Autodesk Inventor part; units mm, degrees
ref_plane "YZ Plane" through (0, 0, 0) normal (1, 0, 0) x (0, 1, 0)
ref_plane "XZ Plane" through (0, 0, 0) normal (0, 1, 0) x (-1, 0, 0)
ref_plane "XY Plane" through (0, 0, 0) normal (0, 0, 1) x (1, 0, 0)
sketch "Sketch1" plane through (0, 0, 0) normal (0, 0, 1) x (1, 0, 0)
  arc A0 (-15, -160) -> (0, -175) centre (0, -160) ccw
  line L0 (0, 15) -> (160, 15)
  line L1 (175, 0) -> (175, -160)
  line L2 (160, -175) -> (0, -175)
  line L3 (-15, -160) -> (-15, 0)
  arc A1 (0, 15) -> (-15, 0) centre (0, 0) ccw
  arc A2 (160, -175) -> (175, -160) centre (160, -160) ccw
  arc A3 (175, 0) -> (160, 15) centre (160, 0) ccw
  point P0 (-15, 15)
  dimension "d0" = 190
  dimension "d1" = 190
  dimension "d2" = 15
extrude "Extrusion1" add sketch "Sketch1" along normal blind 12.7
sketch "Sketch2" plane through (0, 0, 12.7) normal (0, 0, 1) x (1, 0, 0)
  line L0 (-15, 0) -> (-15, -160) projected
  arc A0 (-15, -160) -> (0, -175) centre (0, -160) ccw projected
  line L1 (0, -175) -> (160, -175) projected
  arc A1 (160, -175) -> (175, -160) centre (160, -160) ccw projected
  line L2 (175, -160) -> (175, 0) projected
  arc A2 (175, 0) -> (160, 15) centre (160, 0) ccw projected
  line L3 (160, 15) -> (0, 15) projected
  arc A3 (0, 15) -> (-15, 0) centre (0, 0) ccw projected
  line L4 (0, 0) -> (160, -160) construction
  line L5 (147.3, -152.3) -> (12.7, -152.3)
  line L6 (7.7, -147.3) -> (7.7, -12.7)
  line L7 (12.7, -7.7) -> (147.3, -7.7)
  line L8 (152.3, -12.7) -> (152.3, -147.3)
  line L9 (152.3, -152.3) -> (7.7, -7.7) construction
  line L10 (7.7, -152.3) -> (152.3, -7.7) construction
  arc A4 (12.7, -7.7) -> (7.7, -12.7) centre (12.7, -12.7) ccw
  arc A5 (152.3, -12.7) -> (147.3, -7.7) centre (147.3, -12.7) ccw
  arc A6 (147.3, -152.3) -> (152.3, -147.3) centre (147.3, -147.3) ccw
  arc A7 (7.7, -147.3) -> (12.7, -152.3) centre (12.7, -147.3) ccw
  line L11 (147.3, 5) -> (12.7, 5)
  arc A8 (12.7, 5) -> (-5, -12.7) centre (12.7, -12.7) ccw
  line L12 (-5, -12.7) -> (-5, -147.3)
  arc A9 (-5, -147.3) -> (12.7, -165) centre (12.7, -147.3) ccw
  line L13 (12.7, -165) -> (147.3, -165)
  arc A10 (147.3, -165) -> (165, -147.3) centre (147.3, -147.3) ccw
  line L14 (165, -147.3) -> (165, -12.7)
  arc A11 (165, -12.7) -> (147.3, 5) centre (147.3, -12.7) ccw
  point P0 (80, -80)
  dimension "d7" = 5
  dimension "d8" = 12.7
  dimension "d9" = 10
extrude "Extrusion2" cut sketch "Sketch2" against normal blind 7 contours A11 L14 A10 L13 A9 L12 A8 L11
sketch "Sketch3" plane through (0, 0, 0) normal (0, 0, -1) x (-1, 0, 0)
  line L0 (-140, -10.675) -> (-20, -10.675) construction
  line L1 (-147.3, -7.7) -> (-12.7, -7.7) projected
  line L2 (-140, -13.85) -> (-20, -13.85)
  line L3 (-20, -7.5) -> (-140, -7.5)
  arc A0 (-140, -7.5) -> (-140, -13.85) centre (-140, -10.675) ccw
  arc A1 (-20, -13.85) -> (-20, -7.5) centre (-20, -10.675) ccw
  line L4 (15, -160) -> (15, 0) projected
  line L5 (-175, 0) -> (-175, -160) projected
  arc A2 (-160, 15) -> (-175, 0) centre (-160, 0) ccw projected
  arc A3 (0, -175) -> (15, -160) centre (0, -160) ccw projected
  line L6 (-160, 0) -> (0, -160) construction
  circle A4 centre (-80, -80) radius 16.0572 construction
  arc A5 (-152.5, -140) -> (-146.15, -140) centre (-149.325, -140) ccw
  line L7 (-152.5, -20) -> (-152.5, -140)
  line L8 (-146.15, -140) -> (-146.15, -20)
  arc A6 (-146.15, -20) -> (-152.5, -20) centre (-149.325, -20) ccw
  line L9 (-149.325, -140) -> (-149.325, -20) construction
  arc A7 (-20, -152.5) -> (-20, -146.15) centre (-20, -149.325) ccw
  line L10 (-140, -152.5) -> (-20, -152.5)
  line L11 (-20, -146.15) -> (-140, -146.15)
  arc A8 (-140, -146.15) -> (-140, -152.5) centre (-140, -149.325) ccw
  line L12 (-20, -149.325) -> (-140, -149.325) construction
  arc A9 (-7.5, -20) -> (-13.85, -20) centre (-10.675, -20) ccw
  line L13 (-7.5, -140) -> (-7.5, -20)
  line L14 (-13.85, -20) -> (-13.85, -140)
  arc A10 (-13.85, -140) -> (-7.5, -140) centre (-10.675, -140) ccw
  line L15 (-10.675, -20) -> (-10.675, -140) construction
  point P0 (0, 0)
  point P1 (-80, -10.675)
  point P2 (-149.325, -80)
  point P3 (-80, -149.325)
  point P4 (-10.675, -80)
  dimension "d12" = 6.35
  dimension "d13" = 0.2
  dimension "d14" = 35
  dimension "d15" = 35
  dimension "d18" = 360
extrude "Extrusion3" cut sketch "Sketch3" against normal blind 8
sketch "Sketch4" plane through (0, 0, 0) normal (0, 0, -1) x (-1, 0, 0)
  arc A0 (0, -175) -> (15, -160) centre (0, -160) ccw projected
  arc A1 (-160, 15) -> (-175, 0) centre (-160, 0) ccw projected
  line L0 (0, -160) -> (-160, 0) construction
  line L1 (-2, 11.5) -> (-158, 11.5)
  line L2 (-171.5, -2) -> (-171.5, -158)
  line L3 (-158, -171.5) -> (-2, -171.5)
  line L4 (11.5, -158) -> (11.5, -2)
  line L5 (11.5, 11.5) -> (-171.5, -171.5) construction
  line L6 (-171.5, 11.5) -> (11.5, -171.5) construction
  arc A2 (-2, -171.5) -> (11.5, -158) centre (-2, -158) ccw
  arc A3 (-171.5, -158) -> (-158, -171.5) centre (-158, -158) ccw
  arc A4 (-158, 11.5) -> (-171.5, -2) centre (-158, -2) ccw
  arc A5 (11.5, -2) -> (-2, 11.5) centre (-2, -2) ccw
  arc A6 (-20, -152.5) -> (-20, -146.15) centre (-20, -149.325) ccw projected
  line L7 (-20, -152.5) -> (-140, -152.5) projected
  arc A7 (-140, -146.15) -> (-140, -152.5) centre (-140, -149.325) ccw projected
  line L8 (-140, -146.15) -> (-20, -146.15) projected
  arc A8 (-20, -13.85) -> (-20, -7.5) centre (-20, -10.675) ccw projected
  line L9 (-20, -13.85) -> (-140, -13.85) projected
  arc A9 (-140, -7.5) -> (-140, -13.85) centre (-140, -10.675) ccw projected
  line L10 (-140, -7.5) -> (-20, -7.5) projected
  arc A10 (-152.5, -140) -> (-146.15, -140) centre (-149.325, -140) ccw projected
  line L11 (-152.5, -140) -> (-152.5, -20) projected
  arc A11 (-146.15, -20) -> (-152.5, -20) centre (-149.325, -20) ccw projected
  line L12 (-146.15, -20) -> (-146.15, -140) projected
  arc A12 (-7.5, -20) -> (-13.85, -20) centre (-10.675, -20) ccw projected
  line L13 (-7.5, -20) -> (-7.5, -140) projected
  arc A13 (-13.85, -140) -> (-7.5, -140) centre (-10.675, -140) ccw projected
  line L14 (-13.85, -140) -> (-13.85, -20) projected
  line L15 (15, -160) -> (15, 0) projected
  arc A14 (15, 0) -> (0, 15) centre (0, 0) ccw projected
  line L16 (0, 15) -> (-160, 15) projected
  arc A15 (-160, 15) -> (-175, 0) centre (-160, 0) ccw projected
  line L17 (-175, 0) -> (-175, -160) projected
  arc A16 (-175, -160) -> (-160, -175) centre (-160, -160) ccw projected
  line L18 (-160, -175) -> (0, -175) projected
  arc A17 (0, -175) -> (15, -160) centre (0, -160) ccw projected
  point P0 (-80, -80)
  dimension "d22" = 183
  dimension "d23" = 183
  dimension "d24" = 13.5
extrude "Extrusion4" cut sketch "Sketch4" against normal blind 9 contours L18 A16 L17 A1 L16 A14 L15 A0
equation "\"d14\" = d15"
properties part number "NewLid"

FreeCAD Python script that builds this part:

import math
import FreeCAD as App
import Part
import Sketcher
Q = App.Units.Quantity

doc = App.newDocument("Part")
body = doc.addObject("PartDesign::Body", "Body")

# Sketch on XY plane
sketch1 = doc.addObject("Sketcher::SketchObject", "Sketch")
body.addObject(sketch1)
sketch1.AttachmentSupport = (doc.XY_Plane, [""])
sketch1.MapMode = "FlatFace"
sketch1.addGeometry([
    Part.LineSegment(App.Vector(-15, 0, 0), App.Vector(-15, -160, 0)),  # 0
    Part.ArcOfCircle(Part.Circle(App.Vector(0, -160, 0), App.Vector(0, 0, 1), 15), math.radians(180), math.radians(270)),  # 1
    Part.LineSegment(App.Vector(0, -175, 0), App.Vector(160, -175, 0)),  # 2
    Part.ArcOfCircle(Part.Circle(App.Vector(160, -160, 0), App.Vector(0, 0, 1), 15), math.radians(-90), math.radians(0)),  # 3
    Part.LineSegment(App.Vector(175, -160, 0), App.Vector(175, 0, 0)),  # 4
    Part.ArcOfCircle(Part.Circle(App.Vector(160, 0, 0), App.Vector(0, 0, 1), 15), math.radians(0), math.radians(90)),  # 5
    Part.LineSegment(App.Vector(160, 15, 0), App.Vector(0, 15, 0)),  # 6
    Part.ArcOfCircle(Part.Circle(App.Vector(0, 0, 0), App.Vector(0, 0, 1), 15), math.radians(90), math.radians(180)),  # 7
], False)
sketch1.addConstraint([
    Sketcher.Constraint("Tangent", 0, 2, 1, 1),
    Sketcher.Constraint("Tangent", 1, 2, 2, 1),
    Sketcher.Constraint("Tangent", 2, 2, 3, 1),
    Sketcher.Constraint("Tangent", 3, 2, 4, 1),
    Sketcher.Constraint("Tangent", 4, 2, 5, 1),
    Sketcher.Constraint("Tangent", 5, 2, 6, 1),
    Sketcher.Constraint("Tangent", 6, 2, 7, 1),
    Sketcher.Constraint("Tangent", 7, 2, 0, 1),
    Sketcher.Constraint("Vertical", 0),
    Sketcher.Constraint("Horizontal", 2),
    Sketcher.Constraint("Vertical", 4),
    Sketcher.Constraint("Horizontal", 6),
    Sketcher.Constraint("Coincident", 7, 3, -1, 1),
    Sketcher.Constraint("Equal", 1, 3),
    Sketcher.Constraint("Equal", 3, 5),
    Sketcher.Constraint("Equal", 5, 7),
    Sketcher.Constraint("Equal", 6, 0),
    Sketcher.Constraint("Radius", 1, Q("15 mm")),
    Sketcher.Constraint("DistanceX", 2, 1, 2, 2, Q("160 mm")),
])
pad1 = doc.addObject("PartDesign::Pad", "Pad")
body.addObject(pad1)
pad1.Profile = sketch1
pad1.Length = 12.7

# Sketch on XY plane
sketch2 = doc.addObject("Sketcher::SketchObject", "Sketch001")
body.addObject(sketch2)
sketch2.AttachmentSupport = (doc.XY_Plane, [""])
sketch2.MapMode = "FlatFace"
sketch2.AttachmentOffset = App.Placement(App.Vector(0, 0, 12.7), App.Rotation())
sketch2.addGeometry([
    Part.ArcOfCircle(Part.Circle(App.Vector(147.3, -12.7, 0), App.Vector(0, 0, 1), 17.7), math.radians(0), math.radians(90)),  # 0
    Part.LineSegment(App.Vector(147.3, 5, 0), App.Vector(12.7, 5, 0)),  # 1
    Part.ArcOfCircle(Part.Circle(App.Vector(12.7, -12.7, 0), App.Vector(0, 0, 1), 17.7), math.radians(90), math.radians(180)),  # 2
    Part.LineSegment(App.Vector(-5, -12.7, 0), App.Vector(-5, -147.3, 0)),  # 3
    Part.ArcOfCircle(Part.Circle(App.Vector(12.7, -147.3, 0), App.Vector(0, 0, 1), 17.7), math.radians(180), math.radians(270)),  # 4
    Part.LineSegment(App.Vector(12.7, -165, 0), App.Vector(147.3, -165, 0)),  # 5
    Part.ArcOfCircle(Part.Circle(App.Vector(147.3, -147.3, 0), App.Vector(0, 0, 1), 17.7), math.radians(-90), math.radians(0)),  # 6
    Part.LineSegment(App.Vector(165, -147.3, 0), App.Vector(165, -12.7, 0)),  # 7
    Part.ArcOfCircle(Part.Circle(App.Vector(147.3, -147.3, 0), App.Vector(0, 0, 1), 5), math.radians(-90), math.radians(0)),  # 8
    Part.LineSegment(App.Vector(147.3, -152.3, 0), App.Vector(12.7, -152.3, 0)),  # 9
    Part.ArcOfCircle(Part.Circle(App.Vector(12.7, -147.3, 0), App.Vector(0, 0, 1), 5), math.radians(180), math.radians(270)),  # 10
    Part.LineSegment(App.Vector(7.7, -147.3, 0), App.Vector(7.7, -12.7, 0)),  # 11
    Part.ArcOfCircle(Part.Circle(App.Vector(12.7, -12.7, 0), App.Vector(0, 0, 1), 5), math.radians(90), math.radians(180)),  # 12
    Part.LineSegment(App.Vector(12.7, -7.7, 0), App.Vector(147.3, -7.7, 0)),  # 13
    Part.ArcOfCircle(Part.Circle(App.Vector(147.3, -12.7, 0), App.Vector(0, 0, 1), 5), math.radians(0), math.radians(90)),  # 14
    Part.LineSegment(App.Vector(152.3, -12.7, 0), App.Vector(152.3, -147.3, 0)),  # 15
], False)
sketch2.addConstraint([
    Sketcher.Constraint("Tangent", 0, 2, 1, 1),
    Sketcher.Constraint("Tangent", 1, 2, 2, 1),
    Sketcher.Constraint("Tangent", 2, 2, 3, 1),
    Sketcher.Constraint("Tangent", 3, 2, 4, 1),
    Sketcher.Constraint("Tangent", 4, 2, 5, 1),
    Sketcher.Constraint("Tangent", 5, 2, 6, 1),
    Sketcher.Constraint("Tangent", 6, 2, 7, 1),
    Sketcher.Constraint("Tangent", 7, 2, 0, 1),
    Sketcher.Constraint("Tangent", 8, 1, 9, 1),
    Sketcher.Constraint("Tangent", 9, 2, 10, 2),
    Sketcher.Constraint("Tangent", 10, 1, 11, 1),
    Sketcher.Constraint("Tangent", 11, 2, 12, 2),
    Sketcher.Constraint("Tangent", 12, 1, 13, 1),
    Sketcher.Constraint("Tangent", 13, 2, 14, 2),
    Sketcher.Constraint("Tangent", 14, 1, 15, 1),
    Sketcher.Constraint("Tangent", 15, 2, 8, 2),
    Sketcher.Constraint("Horizontal", 1),
    Sketcher.Constraint("Vertical", 3),
    Sketcher.Constraint("Horizontal", 5),
    Sketcher.Constraint("Vertical", 7),
    Sketcher.Constraint("Horizontal", 9),
    Sketcher.Constraint("Vertical", 11),
    Sketcher.Constraint("Horizontal", 13),
    Sketcher.Constraint("Vertical", 15),
    Sketcher.Constraint("Coincident", 8, 3, 6, 3),
    Sketcher.Constraint("Coincident", 10, 3, 4, 3),
    Sketcher.Constraint("Coincident", 12, 3, 2, 3),
    Sketcher.Constraint("Equal", 0, 2),
    Sketcher.Constraint("Equal", 2, 4),
    Sketcher.Constraint("Equal", 4, 6),
    Sketcher.Constraint("Equal", 12, 14),
    Sketcher.Constraint("Equal", 13, 3),
    Sketcher.Constraint("Radius", 8, Q("5 mm")),
    Sketcher.Constraint("DistanceY", -1, 1, 0, 2, Q("5 mm")),
    Sketcher.Constraint("DistanceX", 2, 2, -1, 1, Q("5 mm")),
    Sketcher.Constraint("DistanceY", 0, 3, -1, 1, Q("12.7 mm")),
    Sketcher.Constraint("DistanceX", 1, 2, 1, 1, Q("134.6 mm")),
])
pocket1 = doc.addObject("PartDesign::Pocket", "Pocket")
body.addObject(pocket1)
pocket1.Profile = sketch2
pocket1.Length = 7

# Sketch on XY plane
sketch3 = doc.addObject("Sketcher::SketchObject", "Sketch002")
body.addObject(sketch3)
sketch3.AttachmentSupport = (doc.XY_Plane, [""])
sketch3.MapMode = "FlatFace"
sketch3.addGeometry([
    Part.ArcOfCircle(Part.Circle(App.Vector(140, -10.7, 0), App.Vector(0, 0, 1), 3.2), math.radians(-90), math.radians(90)),  # 0
    Part.LineSegment(App.Vector(140, -13.8, 0), App.Vector(20, -13.8, 0)),  # 1
    Part.ArcOfCircle(Part.Circle(App.Vector(20, -10.7, 0), App.Vector(0, 0, 1), 3.2), math.radians(90), math.radians(270)),  # 2
    Part.LineSegment(App.Vector(20, -7.5, 0), App.Vector(140, -7.5, 0)),  # 3
    Part.LineSegment(App.Vector(152.5, -20, 0), App.Vector(152.5, -140, 0)),  # 4
    Part.ArcOfCircle(Part.Circle(App.Vector(149.3, -140, 0), App.Vector(0, 0, 1), 3.2), math.radians(180), math.radians(360)),  # 5
    Part.LineSegment(App.Vector(146.2, -140, 0), App.Vector(146.2, -20, 0)),  # 6
    Part.ArcOfCircle(Part.Circle(App.Vector(149.3, -20, 0), App.Vector(0, 0, 1), 3.2), math.radians(0), math.radians(180)),  # 7
    Part.LineSegment(App.Vector(140, -152.5, 0), App.Vector(20, -152.5, 0)),  # 8
    Part.ArcOfCircle(Part.Circle(App.Vector(20, -149.3, 0), App.Vector(0, 0, 1), 3.2), math.radians(90), math.radians(270)),  # 9
    Part.LineSegment(App.Vector(20, -146.2, 0), App.Vector(140, -146.2, 0)),  # 10
    Part.ArcOfCircle(Part.Circle(App.Vector(140, -149.3, 0), App.Vector(0, 0, 1), 3.2), math.radians(-90), math.radians(90)),  # 11
    Part.LineSegment(App.Vector(7.5, -140, 0), App.Vector(7.5, -20, 0)),  # 12
    Part.ArcOfCircle(Part.Circle(App.Vector(10.7, -20, 0), App.Vector(0, 0, 1), 3.2), math.radians(0), math.radians(180)),  # 13
    Part.LineSegment(App.Vector(13.8, -20, 0), App.Vector(13.8, -140, 0)),  # 14
    Part.ArcOfCircle(Part.Circle(App.Vector(10.7, -140, 0), App.Vector(0, 0, 1), 3.2), math.radians(180), math.radians(360)),  # 15
], False)
sketch3.addConstraint([
    Sketcher.Constraint("Tangent", 0, 1, 1, 1),
    Sketcher.Constraint("Tangent", 1, 2, 2, 2),
    Sketcher.Constraint("Tangent", 2, 1, 3, 1),
    Sketcher.Constraint("Tangent", 3, 2, 0, 2),
    Sketcher.Constraint("Tangent", 4, 2, 5, 2),
    Sketcher.Constraint("Tangent", 5, 1, 6, 1),
    Sketcher.Constraint("Tangent", 6, 2, 7, 2),
    Sketcher.Constraint("Tangent", 7, 1, 4, 1),
    Sketcher.Constraint("Tangent", 8, 2, 9, 2),
    Sketcher.Constraint("Tangent", 9, 1, 10, 1),
    Sketcher.Constraint("Tangent", 10, 2, 11, 2),
    Sketcher.Constraint("Tangent", 11, 1, 8, 1),
    Sketcher.Constraint("Tangent", 12, 2, 13, 2),
    Sketcher.Constraint("Tangent", 13, 1, 14, 1),
    Sketcher.Constraint("Tangent", 14, 2, 15, 2),
    Sketcher.Constraint("Tangent", 15, 1, 12, 1),
    Sketcher.Constraint("Horizontal", 1),
    Sketcher.Constraint("Horizontal", 3),
    Sketcher.Constraint("Vertical", 4),
    Sketcher.Constraint("Vertical", 6),
    Sketcher.Constraint("Horizontal", 8),
    Sketcher.Constraint("Horizontal", 10),
    Sketcher.Constraint("Vertical", 12),
    Sketcher.Constraint("Vertical", 14),
    Sketcher.Constraint("Equal", 2, 5),
    Sketcher.Constraint("Equal", 7, 9),
    Sketcher.Constraint("Equal", 11, 13),
    Sketcher.Constraint("Horizontal", 7, 3, 13, 3),
    Sketcher.Constraint("Horizontal", 5, 3, 15, 3),
    Sketcher.Constraint("Vertical", 2, 3, 9, 3),
    Sketcher.Constraint("Vertical", 0, 3, 11, 3),
    Sketcher.Constraint("Equal", 10, 4),
    Sketcher.Constraint("Radius", 0, Q("3.175 mm")),
    Sketcher.Constraint("DistanceX", 1, 2, 1, 1, Q("120 mm")),
    Sketcher.Constraint("DistanceX", -1, 1, 0, 3, Q("140 mm")),
    Sketcher.Constraint("DistanceY", 5, 3, -1, 1, Q("140 mm")),
    Sketcher.Constraint("DistanceY", 2, 1, -1, 1, Q("7.5 mm")),
    Sketcher.Constraint("DistanceX", -1, 1, 4, 2, Q("152.5 mm")),
    Sketcher.Constraint("DistanceY", 8, 2, -1, 1, Q("152.5 mm")),
    Sketcher.Constraint("DistanceX", -1, 1, 12, 2, Q("7.5 mm")),
])
pocket2 = doc.addObject("PartDesign::Pocket", "Pocket001")
body.addObject(pocket2)
pocket2.Profile = sketch3
pocket2.Length = 8
pocket2.Reversed = True

# Sketch on XY plane
sketch4 = doc.addObject("Sketcher::SketchObject", "Sketch003")
body.addObject(sketch4)
sketch4.AttachmentSupport = (doc.XY_Plane, [""])
sketch4.MapMode = "FlatFace"
sketch4.addGeometry([
    Part.LineSegment(App.Vector(160, -175, 0), App.Vector(0, -175, 0)),  # 0
    Part.ArcOfCircle(Part.Circle(App.Vector(0, -160, 0), App.Vector(0, 0, 1), 15), math.radians(180), math.radians(270)),  # 1
    Part.LineSegment(App.Vector(-15, -160, 0), App.Vector(-15, 0, 0)),  # 2
    Part.ArcOfCircle(Part.Circle(App.Vector(0, 0, 0), App.Vector(0, 0, 1), 15), math.radians(90), math.radians(180)),  # 3
    Part.LineSegment(App.Vector(0, 15, 0), App.Vector(160, 15, 0)),  # 4
    Part.ArcOfCircle(Part.Circle(App.Vector(160, 0, 0), App.Vector(0, 0, 1), 15), math.radians(0), math.radians(90)),  # 5
    Part.LineSegment(App.Vector(175, 0, 0), App.Vector(175, -160, 0)),  # 6
    Part.ArcOfCircle(Part.Circle(App.Vector(160, -160, 0), App.Vector(0, 0, 1), 15), math.radians(-90), math.radians(0)),  # 7
    Part.LineSegment(App.Vector(158, 12, 0), App.Vector(2, 12, 0)),  # 8
    Part.ArcOfCircle(Part.Circle(App.Vector(2, -2, 0), App.Vector(0, 0, 1), 14), math.radians(90), math.radians(180)),  # 9
    Part.LineSegment(App.Vector(-12, -2, 0), App.Vector(-12, -158, 0)),  # 10
    Part.ArcOfCircle(Part.Circle(App.Vector(2, -158, 0), App.Vector(0, 0, 1), 14), math.radians(180), math.radians(270)),  # 11
    Part.LineSegment(App.Vector(2, -172, 0), App.Vector(158, -172, 0)),  # 12
    Part.ArcOfCircle(Part.Circle(App.Vector(158, -158, 0), App.Vector(0, 0, 1), 14), math.radians(-90), math.radians(0)),  # 13
    Part.LineSegment(App.Vector(172, -158, 0), App.Vector(172, -2, 0)),  # 14
    Part.ArcOfCircle(Part.Circle(App.Vector(158, -2, 0), App.Vector(0, 0, 1), 14), math.radians(0), math.radians(90)),  # 15
], False)
sketch4.addConstraint([
    Sketcher.Constraint("Tangent", 0, 2, 1, 2),
    Sketcher.Constraint("Tangent", 1, 1, 2, 1),
    Sketcher.Constraint("Tangent", 2, 2, 3, 2),
    Sketcher.Constraint("Tangent", 3, 1, 4, 1),
    Sketcher.Constraint("Tangent", 4, 2, 5, 2),
    Sketcher.Constraint("Tangent", 5, 1, 6, 1),
    Sketcher.Constraint("Tangent", 6, 2, 7, 2),
    Sketcher.Constraint("Tangent", 7, 1, 0, 1),
    Sketcher.Constraint("Tangent", 8, 2, 9, 1),
    Sketcher.Constraint("Tangent", 9, 2, 10, 1),
    Sketcher.Constraint("Tangent", 10, 2, 11, 1),
    Sketcher.Constraint("Tangent", 11, 2, 12, 1),
    Sketcher.Constraint("Tangent", 12, 2, 13, 1),
    Sketcher.Constraint("Tangent", 13, 2, 14, 1),
    Sketcher.Constraint("Tangent", 14, 2, 15, 1),
    Sketcher.Constraint("Tangent", 15, 2, 8, 1),
    Sketcher.Constraint("Horizontal", 0),
    Sketcher.Constraint("Vertical", 2),
    Sketcher.Constraint("Horizontal", 4),
    Sketcher.Constraint("Vertical", 6),
    Sketcher.Constraint("Horizontal", 8),
    Sketcher.Constraint("Vertical", 10),
    Sketcher.Constraint("Horizontal", 12),
    Sketcher.Constraint("Vertical", 14),
    Sketcher.Constraint("Coincident", 3, 3, -1, 1),
    Sketcher.Constraint("Equal", 1, 3),
    Sketcher.Constraint("Equal", 3, 5),
    Sketcher.Constraint("Equal", 5, 7),
    Sketcher.Constraint("Equal", 9, 11),
    Sketcher.Constraint("Equal", 11, 13),
    Sketcher.Constraint("Equal", 13, 15),
    Sketcher.Constraint("Equal", 4, 2),
    Sketcher.Constraint("Equal", 12, 10),
    Sketcher.Constraint("Radius", 9, Q("13.5 mm")),
    Sketcher.Constraint("Radius", 1, Q("15 mm")),
    Sketcher.Constraint("DistanceX", 0, 2, 0, 1, Q("160 mm")),
    Sketcher.Constraint("DistanceX", 8, 2, 8, 1, Q("156 mm")),
    Sketcher.Constraint("DistanceX", -1, 1, 9, 3, Q("2 mm")),
    Sketcher.Constraint("DistanceY", 9, 3, -1, 1, Q("2 mm")),
])
pocket3 = doc.addObject("PartDesign::Pocket", "Pocket002")
body.addObject(pocket3)
pocket3.Profile = sketch4
pocket3.Length = 9
pocket3.Reversed = True

doc.recompute()
